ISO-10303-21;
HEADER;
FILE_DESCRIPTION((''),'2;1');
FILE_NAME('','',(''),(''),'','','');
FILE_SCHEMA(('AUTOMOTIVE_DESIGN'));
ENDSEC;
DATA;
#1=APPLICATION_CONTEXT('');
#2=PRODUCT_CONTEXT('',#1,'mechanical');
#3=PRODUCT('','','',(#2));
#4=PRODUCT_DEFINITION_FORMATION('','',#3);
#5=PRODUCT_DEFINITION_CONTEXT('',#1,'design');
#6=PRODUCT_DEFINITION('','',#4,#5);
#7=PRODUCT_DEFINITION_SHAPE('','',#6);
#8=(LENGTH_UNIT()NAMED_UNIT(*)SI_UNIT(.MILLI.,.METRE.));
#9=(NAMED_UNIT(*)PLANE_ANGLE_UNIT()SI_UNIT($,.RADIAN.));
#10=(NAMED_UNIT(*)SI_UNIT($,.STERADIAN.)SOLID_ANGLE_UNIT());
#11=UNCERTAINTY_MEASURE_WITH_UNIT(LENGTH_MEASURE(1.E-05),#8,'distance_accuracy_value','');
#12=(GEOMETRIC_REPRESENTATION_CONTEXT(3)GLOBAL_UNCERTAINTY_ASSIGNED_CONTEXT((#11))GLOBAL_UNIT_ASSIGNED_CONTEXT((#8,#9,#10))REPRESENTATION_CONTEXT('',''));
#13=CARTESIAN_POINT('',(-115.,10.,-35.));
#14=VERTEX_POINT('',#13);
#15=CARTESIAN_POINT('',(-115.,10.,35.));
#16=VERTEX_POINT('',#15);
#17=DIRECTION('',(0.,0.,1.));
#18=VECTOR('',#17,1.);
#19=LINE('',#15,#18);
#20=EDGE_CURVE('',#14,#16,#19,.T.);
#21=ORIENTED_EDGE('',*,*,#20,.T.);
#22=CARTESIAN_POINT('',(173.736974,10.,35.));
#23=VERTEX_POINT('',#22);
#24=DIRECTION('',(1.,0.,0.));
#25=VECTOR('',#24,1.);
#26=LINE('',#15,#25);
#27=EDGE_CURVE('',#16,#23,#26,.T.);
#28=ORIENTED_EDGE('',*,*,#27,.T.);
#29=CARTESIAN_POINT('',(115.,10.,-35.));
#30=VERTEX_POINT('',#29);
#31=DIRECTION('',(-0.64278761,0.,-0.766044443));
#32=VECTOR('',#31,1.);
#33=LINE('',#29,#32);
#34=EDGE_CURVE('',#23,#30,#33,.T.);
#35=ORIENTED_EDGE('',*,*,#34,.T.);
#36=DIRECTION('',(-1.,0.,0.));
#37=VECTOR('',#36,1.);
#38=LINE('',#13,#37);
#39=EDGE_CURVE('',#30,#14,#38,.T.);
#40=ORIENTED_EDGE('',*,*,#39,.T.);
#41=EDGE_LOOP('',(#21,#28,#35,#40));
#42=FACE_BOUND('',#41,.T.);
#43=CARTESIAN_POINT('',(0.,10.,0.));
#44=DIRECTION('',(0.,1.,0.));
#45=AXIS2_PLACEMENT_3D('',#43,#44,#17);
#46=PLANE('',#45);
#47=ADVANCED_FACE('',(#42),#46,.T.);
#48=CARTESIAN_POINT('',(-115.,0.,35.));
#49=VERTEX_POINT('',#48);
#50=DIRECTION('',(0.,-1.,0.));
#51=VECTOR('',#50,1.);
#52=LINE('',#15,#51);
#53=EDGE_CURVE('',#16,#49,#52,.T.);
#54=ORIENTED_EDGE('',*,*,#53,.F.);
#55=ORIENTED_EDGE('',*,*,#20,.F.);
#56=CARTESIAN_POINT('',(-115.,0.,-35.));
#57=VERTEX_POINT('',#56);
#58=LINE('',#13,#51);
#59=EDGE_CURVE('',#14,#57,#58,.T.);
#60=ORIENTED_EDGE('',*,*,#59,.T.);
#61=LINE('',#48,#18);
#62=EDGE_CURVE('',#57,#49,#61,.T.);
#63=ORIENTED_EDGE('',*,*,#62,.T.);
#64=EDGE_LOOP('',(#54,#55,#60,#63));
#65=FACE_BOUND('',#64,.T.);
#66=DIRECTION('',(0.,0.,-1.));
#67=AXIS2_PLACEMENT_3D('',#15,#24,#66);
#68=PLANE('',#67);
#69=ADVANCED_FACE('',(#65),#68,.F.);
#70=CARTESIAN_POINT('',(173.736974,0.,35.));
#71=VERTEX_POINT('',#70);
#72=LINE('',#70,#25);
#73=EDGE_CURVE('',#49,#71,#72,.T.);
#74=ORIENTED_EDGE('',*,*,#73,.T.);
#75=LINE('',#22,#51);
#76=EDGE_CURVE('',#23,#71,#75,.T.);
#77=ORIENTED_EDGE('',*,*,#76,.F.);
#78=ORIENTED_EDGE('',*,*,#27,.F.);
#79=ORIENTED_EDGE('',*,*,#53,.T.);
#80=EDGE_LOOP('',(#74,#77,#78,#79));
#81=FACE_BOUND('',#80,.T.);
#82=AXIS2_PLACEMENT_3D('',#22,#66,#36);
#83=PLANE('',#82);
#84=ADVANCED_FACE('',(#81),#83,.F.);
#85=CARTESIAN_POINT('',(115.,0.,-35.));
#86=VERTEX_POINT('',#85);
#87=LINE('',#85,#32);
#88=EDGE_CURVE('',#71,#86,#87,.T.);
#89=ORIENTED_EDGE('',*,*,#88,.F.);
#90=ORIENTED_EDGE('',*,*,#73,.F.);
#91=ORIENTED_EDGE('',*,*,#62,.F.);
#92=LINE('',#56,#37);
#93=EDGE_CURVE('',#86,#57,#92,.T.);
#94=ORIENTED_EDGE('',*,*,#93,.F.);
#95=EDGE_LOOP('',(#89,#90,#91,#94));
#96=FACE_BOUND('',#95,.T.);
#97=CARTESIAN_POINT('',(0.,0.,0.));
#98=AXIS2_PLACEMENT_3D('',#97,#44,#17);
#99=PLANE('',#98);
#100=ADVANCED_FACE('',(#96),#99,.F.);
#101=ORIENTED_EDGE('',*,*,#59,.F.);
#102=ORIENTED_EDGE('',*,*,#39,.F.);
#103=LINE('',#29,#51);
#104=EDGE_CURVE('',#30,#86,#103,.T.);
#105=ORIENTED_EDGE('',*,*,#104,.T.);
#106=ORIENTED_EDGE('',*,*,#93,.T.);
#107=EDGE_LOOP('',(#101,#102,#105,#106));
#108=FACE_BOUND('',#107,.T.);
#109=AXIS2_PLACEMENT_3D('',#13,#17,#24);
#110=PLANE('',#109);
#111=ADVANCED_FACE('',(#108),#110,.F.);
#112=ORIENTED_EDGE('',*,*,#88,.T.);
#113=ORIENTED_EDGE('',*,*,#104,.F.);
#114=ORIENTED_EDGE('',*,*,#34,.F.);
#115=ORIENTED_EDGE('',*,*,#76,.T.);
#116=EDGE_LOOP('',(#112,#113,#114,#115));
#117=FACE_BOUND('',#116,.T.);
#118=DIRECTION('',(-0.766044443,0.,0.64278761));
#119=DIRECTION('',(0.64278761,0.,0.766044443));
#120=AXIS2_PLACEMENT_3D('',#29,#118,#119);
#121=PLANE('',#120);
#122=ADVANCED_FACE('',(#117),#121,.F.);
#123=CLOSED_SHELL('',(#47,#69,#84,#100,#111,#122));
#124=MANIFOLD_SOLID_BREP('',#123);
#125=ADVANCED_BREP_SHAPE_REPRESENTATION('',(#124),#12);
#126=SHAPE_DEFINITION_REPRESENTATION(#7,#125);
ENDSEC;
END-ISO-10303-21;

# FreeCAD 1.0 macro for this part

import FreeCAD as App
import Part
import Sketcher

V = App.Vector
Q = App.Units.Quantity

doc = App.newDocument("Part")
body = doc.addObject("PartDesign::Body", "Body")

sketch1 = doc.addObject("Sketcher::SketchObject", "Sketch")
body.addObject(sketch1)
sketch1.AttachmentSupport = (doc.XZ_Plane, [""])
sketch1.MapMode = "FlatFace"
sketch1.addGeometry([
    Part.LineSegment(V(174, 35, 0), V(115, -35, 0)),
    Part.LineSegment(V(115, -35, 0), V(-115, -35, 0)),
    Part.LineSegment(V(-115, -35, 0), V(-115, 35, 0)),
    Part.LineSegment(V(-115, 35, 0), V(174, 35, 0)),
], False)
sketch1.addConstraint([
    Sketcher.Constraint("Coincident", 0, 2, 1, 1),
    Sketcher.Constraint("Coincident", 1, 2, 2, 1),
    Sketcher.Constraint("Coincident", 2, 2, 3, 1),
    Sketcher.Constraint("Coincident", 3, 2, 0, 1),
    Sketcher.Constraint("Horizontal", 1),
    Sketcher.Constraint("Vertical", 2),
    Sketcher.Constraint("Horizontal", 3),
    Sketcher.Constraint("Symmetric", 0, 2, 2, 2, -1, 1),
    Sketcher.Constraint("DistanceX", 1, 2, 1, 1, Q("230 mm")),
    Sketcher.Constraint("DistanceY", 2, 1, 2, 2, Q("70 mm")),
    Sketcher.Constraint("Angle", 0, Q("-130 deg")),
])
pad1 = doc.addObject("PartDesign::Pad", "Pad")
body.addObject(pad1)
pad1.Profile = sketch1
pad1.Length = 10
pad1.Reversed = True

doc.recompute()
